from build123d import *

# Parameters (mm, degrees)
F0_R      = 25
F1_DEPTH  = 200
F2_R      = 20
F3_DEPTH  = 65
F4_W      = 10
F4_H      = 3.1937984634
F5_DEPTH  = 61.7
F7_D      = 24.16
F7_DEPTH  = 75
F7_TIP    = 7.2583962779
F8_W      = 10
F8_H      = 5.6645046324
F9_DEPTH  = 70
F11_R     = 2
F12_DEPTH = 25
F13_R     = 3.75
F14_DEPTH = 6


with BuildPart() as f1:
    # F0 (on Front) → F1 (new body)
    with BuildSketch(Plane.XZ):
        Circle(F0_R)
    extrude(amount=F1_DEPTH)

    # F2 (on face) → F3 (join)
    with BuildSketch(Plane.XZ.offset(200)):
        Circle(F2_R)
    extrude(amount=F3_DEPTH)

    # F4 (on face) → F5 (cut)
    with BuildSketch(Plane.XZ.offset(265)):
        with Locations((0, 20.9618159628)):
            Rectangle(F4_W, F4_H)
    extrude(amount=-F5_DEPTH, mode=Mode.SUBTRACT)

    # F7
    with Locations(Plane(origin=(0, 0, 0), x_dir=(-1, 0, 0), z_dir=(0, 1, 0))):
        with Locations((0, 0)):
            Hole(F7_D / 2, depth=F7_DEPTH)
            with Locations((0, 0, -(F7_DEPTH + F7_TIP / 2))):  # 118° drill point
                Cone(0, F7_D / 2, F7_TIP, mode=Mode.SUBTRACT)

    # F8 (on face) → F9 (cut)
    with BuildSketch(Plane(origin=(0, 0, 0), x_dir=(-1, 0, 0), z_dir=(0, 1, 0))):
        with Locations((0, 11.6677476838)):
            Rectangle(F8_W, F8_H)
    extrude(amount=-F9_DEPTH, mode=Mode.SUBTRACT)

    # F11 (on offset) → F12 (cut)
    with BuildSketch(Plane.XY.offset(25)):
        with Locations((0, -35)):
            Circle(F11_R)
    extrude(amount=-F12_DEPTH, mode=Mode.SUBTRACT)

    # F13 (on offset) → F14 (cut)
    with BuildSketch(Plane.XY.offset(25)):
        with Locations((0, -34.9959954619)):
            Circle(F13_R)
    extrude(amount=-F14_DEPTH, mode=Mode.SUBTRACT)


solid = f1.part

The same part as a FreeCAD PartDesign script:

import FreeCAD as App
import Part
import Sketcher


def add_polygon(sketch, points):
    """Adds a closed chain of lines whose ends are joined by coincident constraints."""
    first, n = sketch.GeometryCount, len(points)
    for a, b in zip(points, points[1:] + points[:1]):
        sketch.addGeometry(Part.LineSegment(App.Vector(*a, 0), App.Vector(*b, 0)), False)
    for i in range(n):
        sketch.addConstraint(Sketcher.Constraint("Coincident", first + i, 2, first + (i + 1) % n, 1))

doc = App.newDocument("Part")
body = doc.addObject("PartDesign::Body", "Body")

# Sketch on XZ plane
sketch1 = body.newObject("Sketcher::SketchObject", "Sketch")
sketch1.AttachmentSupport = (doc.getObject("XZ_Plane"), [""])
sketch1.MapMode = "FlatFace"
sketch1.addGeometry(Part.Circle(App.Vector(0, 0, 0), App.Vector(0, 0, 1), 25), False)
sketch1.addConstraint(Sketcher.Constraint("Coincident", 0, 3, -1, 1))
sketch1.addConstraint(Sketcher.Constraint("Diameter", 0, 50.0))
pad1 = body.newObject("PartDesign::Pad", "Pad")
pad1.Profile = sketch1
pad1.Length = 200

# Sketch on XZ plane
sketch2 = body.newObject("Sketcher::SketchObject", "Sketch001")
sketch2.AttachmentSupport = (doc.getObject("XZ_Plane"), [""])
sketch2.MapMode = "FlatFace"
sketch2.AttachmentOffset = App.Placement(App.Vector(0, 0, 200), App.Rotation())
sketch2.addGeometry(Part.Circle(App.Vector(0, 0, 0), App.Vector(0, 0, 1), 20), False)
sketch2.addConstraint(Sketcher.Constraint("Coincident", 0, 3, -1, 1))
sketch2.addConstraint(Sketcher.Constraint("Diameter", 0, 40.0))
pad2 = body.newObject("PartDesign::Pad", "Pad001")
pad2.Profile = sketch2
pad2.Length = 65

# Sketch on XZ plane
sketch3 = body.newObject("Sketcher::SketchObject", "Sketch002")
sketch3.AttachmentSupport = (doc.getObject("XZ_Plane"), [""])
sketch3.MapMode = "FlatFace"
sketch3.AttachmentOffset = App.Placement(App.Vector(0, 0, 265), App.Rotation())
add_polygon(sketch3, [(-5, 22.6), (-5, 19.4), (5, 19.4), (5, 22.6)])  # lines 0-3
sketch3.addConstraint(Sketcher.Constraint("Vertical", 0))
sketch3.addConstraint(Sketcher.Constraint("Horizontal", 1))
sketch3.addConstraint(Sketcher.Constraint("Vertical", 2))
sketch3.addConstraint(Sketcher.Constraint("Horizontal", 3))
sketch3.addConstraint(Sketcher.Constraint("DistanceX", 1, 1, 1, 2, 10.0))
sketch3.addConstraint(Sketcher.Constraint("DistanceX", 0, 2, -1, 1, 5.0))
sketch3.addConstraint(Sketcher.Constraint("DistanceY", 0, 2, 0, 1, 3.193798))
sketch3.addConstraint(Sketcher.Constraint("DistanceY", -1, 1, 0, 2, 19.364917))
pocket1 = body.newObject("PartDesign::Pocket", "Pocket")
pocket1.Profile = sketch3
pocket1.Length = 61.7

# Sketch on XZ plane
sketch4 = body.newObject("Sketcher::SketchObject", "Sketch003")
sketch4.AttachmentSupport = (doc.getObject("XZ_Plane"), [""])
sketch4.MapMode = "FlatFace"
sketch4.addGeometry(Part.Circle(App.Vector(0, 0, 0), App.Vector(0, 0, 1), 12), False)
sketch4.addConstraint(Sketcher.Constraint("Coincident", 0, 3, -1, 1))
sketch4.addConstraint(Sketcher.Constraint("Diameter", 0, 24.16))
doc.recompute()
hole = body.newObject("PartDesign::Hole", "Hole")
hole.Profile = sketch4
hole.ThreadType = "None"
hole.Diameter = 24.16
hole.DepthType = "Dimension"
hole.Depth = 75
hole.DrillPoint = "Angled"
hole.DrillPointAngle = 118
hole.Reversed = True

# Sketch on XZ plane
sketch5 = body.newObject("Sketcher::SketchObject", "Sketch004")
sketch5.AttachmentSupport = (doc.getObject("XZ_Plane"), [""])
sketch5.MapMode = "FlatFace"
add_polygon(sketch5, [(5, 14), (5, 9), (-5, 9), (-5, 14)])  # lines 0-3
sketch5.addConstraint(Sketcher.Constraint("Vertical", 0))
sketch5.addConstraint(Sketcher.Constraint("Horizontal", 1))
sketch5.addConstraint(Sketcher.Constraint("Vertical", 2))
sketch5.addConstraint(Sketcher.Constraint("Horizontal", 3))
sketch5.addConstraint(Sketcher.Constraint("DistanceX", 1, 2, 1, 1, 10.0))
sketch5.addConstraint(Sketcher.Constraint("DistanceX", -1, 1, 0, 2, 5.0))
sketch5.addConstraint(Sketcher.Constraint("DistanceY", -1, 1, 2, 2, 14.5))
sketch5.addConstraint(Sketcher.Constraint("DistanceY", 0, 2, 0, 1, 5.664505))
pocket2 = body.newObject("PartDesign::Pocket", "Pocket001")
pocket2.Profile = sketch5
pocket2.Length = 70
pocket2.Reversed = True

# Sketch on XY plane
sketch6 = body.newObject("Sketcher::SketchObject", "Sketch005")
sketch6.AttachmentSupport = (doc.getObject("XY_Plane"), [""])
sketch6.MapMode = "FlatFace"
sketch6.AttachmentOffset = App.Placement(App.Vector(0, 0, 25), App.Rotation())
sketch6.addGeometry(Part.Circle(App.Vector(0, -35, 0), App.Vector(0, 0, 1), 2), False)
sketch6.addConstraint(Sketcher.Constraint("PointOnObject", 0, 3, -2))
sketch6.addConstraint(Sketcher.Constraint("Diameter", 0, 4.0))
sketch6.addConstraint(Sketcher.Constraint("DistanceY", 0, 3, -1, 1, 35.0))
pocket3 = body.newObject("PartDesign::Pocket", "Pocket002")
pocket3.Profile = sketch6
pocket3.Length = 25

# Sketch on XY plane
sketch7 = body.newObject("Sketcher::SketchObject", "Sketch006")
sketch7.AttachmentSupport = (doc.getObject("XY_Plane"), [""])
sketch7.MapMode = "FlatFace"
sketch7.AttachmentOffset = App.Placement(App.Vector(0, 0, 25), App.Rotation())
sketch7.addGeometry(Part.Circle(App.Vector(0, -35, 0), App.Vector(0, 0, 1), 3.8), False)
sketch7.addConstraint(Sketcher.Constraint("PointOnObject", 0, 3, -2))
sketch7.addConstraint(Sketcher.Constraint("Diameter", 0, 7.5))
sketch7.addConstraint(Sketcher.Constraint("DistanceY", 0, 3, -1, 1, 34.995995))
pocket4 = body.newObject("PartDesign::Pocket", "Pocket003")
pocket4.Profile = sketch7
pocket4.Length = 6

doc.recompute()
